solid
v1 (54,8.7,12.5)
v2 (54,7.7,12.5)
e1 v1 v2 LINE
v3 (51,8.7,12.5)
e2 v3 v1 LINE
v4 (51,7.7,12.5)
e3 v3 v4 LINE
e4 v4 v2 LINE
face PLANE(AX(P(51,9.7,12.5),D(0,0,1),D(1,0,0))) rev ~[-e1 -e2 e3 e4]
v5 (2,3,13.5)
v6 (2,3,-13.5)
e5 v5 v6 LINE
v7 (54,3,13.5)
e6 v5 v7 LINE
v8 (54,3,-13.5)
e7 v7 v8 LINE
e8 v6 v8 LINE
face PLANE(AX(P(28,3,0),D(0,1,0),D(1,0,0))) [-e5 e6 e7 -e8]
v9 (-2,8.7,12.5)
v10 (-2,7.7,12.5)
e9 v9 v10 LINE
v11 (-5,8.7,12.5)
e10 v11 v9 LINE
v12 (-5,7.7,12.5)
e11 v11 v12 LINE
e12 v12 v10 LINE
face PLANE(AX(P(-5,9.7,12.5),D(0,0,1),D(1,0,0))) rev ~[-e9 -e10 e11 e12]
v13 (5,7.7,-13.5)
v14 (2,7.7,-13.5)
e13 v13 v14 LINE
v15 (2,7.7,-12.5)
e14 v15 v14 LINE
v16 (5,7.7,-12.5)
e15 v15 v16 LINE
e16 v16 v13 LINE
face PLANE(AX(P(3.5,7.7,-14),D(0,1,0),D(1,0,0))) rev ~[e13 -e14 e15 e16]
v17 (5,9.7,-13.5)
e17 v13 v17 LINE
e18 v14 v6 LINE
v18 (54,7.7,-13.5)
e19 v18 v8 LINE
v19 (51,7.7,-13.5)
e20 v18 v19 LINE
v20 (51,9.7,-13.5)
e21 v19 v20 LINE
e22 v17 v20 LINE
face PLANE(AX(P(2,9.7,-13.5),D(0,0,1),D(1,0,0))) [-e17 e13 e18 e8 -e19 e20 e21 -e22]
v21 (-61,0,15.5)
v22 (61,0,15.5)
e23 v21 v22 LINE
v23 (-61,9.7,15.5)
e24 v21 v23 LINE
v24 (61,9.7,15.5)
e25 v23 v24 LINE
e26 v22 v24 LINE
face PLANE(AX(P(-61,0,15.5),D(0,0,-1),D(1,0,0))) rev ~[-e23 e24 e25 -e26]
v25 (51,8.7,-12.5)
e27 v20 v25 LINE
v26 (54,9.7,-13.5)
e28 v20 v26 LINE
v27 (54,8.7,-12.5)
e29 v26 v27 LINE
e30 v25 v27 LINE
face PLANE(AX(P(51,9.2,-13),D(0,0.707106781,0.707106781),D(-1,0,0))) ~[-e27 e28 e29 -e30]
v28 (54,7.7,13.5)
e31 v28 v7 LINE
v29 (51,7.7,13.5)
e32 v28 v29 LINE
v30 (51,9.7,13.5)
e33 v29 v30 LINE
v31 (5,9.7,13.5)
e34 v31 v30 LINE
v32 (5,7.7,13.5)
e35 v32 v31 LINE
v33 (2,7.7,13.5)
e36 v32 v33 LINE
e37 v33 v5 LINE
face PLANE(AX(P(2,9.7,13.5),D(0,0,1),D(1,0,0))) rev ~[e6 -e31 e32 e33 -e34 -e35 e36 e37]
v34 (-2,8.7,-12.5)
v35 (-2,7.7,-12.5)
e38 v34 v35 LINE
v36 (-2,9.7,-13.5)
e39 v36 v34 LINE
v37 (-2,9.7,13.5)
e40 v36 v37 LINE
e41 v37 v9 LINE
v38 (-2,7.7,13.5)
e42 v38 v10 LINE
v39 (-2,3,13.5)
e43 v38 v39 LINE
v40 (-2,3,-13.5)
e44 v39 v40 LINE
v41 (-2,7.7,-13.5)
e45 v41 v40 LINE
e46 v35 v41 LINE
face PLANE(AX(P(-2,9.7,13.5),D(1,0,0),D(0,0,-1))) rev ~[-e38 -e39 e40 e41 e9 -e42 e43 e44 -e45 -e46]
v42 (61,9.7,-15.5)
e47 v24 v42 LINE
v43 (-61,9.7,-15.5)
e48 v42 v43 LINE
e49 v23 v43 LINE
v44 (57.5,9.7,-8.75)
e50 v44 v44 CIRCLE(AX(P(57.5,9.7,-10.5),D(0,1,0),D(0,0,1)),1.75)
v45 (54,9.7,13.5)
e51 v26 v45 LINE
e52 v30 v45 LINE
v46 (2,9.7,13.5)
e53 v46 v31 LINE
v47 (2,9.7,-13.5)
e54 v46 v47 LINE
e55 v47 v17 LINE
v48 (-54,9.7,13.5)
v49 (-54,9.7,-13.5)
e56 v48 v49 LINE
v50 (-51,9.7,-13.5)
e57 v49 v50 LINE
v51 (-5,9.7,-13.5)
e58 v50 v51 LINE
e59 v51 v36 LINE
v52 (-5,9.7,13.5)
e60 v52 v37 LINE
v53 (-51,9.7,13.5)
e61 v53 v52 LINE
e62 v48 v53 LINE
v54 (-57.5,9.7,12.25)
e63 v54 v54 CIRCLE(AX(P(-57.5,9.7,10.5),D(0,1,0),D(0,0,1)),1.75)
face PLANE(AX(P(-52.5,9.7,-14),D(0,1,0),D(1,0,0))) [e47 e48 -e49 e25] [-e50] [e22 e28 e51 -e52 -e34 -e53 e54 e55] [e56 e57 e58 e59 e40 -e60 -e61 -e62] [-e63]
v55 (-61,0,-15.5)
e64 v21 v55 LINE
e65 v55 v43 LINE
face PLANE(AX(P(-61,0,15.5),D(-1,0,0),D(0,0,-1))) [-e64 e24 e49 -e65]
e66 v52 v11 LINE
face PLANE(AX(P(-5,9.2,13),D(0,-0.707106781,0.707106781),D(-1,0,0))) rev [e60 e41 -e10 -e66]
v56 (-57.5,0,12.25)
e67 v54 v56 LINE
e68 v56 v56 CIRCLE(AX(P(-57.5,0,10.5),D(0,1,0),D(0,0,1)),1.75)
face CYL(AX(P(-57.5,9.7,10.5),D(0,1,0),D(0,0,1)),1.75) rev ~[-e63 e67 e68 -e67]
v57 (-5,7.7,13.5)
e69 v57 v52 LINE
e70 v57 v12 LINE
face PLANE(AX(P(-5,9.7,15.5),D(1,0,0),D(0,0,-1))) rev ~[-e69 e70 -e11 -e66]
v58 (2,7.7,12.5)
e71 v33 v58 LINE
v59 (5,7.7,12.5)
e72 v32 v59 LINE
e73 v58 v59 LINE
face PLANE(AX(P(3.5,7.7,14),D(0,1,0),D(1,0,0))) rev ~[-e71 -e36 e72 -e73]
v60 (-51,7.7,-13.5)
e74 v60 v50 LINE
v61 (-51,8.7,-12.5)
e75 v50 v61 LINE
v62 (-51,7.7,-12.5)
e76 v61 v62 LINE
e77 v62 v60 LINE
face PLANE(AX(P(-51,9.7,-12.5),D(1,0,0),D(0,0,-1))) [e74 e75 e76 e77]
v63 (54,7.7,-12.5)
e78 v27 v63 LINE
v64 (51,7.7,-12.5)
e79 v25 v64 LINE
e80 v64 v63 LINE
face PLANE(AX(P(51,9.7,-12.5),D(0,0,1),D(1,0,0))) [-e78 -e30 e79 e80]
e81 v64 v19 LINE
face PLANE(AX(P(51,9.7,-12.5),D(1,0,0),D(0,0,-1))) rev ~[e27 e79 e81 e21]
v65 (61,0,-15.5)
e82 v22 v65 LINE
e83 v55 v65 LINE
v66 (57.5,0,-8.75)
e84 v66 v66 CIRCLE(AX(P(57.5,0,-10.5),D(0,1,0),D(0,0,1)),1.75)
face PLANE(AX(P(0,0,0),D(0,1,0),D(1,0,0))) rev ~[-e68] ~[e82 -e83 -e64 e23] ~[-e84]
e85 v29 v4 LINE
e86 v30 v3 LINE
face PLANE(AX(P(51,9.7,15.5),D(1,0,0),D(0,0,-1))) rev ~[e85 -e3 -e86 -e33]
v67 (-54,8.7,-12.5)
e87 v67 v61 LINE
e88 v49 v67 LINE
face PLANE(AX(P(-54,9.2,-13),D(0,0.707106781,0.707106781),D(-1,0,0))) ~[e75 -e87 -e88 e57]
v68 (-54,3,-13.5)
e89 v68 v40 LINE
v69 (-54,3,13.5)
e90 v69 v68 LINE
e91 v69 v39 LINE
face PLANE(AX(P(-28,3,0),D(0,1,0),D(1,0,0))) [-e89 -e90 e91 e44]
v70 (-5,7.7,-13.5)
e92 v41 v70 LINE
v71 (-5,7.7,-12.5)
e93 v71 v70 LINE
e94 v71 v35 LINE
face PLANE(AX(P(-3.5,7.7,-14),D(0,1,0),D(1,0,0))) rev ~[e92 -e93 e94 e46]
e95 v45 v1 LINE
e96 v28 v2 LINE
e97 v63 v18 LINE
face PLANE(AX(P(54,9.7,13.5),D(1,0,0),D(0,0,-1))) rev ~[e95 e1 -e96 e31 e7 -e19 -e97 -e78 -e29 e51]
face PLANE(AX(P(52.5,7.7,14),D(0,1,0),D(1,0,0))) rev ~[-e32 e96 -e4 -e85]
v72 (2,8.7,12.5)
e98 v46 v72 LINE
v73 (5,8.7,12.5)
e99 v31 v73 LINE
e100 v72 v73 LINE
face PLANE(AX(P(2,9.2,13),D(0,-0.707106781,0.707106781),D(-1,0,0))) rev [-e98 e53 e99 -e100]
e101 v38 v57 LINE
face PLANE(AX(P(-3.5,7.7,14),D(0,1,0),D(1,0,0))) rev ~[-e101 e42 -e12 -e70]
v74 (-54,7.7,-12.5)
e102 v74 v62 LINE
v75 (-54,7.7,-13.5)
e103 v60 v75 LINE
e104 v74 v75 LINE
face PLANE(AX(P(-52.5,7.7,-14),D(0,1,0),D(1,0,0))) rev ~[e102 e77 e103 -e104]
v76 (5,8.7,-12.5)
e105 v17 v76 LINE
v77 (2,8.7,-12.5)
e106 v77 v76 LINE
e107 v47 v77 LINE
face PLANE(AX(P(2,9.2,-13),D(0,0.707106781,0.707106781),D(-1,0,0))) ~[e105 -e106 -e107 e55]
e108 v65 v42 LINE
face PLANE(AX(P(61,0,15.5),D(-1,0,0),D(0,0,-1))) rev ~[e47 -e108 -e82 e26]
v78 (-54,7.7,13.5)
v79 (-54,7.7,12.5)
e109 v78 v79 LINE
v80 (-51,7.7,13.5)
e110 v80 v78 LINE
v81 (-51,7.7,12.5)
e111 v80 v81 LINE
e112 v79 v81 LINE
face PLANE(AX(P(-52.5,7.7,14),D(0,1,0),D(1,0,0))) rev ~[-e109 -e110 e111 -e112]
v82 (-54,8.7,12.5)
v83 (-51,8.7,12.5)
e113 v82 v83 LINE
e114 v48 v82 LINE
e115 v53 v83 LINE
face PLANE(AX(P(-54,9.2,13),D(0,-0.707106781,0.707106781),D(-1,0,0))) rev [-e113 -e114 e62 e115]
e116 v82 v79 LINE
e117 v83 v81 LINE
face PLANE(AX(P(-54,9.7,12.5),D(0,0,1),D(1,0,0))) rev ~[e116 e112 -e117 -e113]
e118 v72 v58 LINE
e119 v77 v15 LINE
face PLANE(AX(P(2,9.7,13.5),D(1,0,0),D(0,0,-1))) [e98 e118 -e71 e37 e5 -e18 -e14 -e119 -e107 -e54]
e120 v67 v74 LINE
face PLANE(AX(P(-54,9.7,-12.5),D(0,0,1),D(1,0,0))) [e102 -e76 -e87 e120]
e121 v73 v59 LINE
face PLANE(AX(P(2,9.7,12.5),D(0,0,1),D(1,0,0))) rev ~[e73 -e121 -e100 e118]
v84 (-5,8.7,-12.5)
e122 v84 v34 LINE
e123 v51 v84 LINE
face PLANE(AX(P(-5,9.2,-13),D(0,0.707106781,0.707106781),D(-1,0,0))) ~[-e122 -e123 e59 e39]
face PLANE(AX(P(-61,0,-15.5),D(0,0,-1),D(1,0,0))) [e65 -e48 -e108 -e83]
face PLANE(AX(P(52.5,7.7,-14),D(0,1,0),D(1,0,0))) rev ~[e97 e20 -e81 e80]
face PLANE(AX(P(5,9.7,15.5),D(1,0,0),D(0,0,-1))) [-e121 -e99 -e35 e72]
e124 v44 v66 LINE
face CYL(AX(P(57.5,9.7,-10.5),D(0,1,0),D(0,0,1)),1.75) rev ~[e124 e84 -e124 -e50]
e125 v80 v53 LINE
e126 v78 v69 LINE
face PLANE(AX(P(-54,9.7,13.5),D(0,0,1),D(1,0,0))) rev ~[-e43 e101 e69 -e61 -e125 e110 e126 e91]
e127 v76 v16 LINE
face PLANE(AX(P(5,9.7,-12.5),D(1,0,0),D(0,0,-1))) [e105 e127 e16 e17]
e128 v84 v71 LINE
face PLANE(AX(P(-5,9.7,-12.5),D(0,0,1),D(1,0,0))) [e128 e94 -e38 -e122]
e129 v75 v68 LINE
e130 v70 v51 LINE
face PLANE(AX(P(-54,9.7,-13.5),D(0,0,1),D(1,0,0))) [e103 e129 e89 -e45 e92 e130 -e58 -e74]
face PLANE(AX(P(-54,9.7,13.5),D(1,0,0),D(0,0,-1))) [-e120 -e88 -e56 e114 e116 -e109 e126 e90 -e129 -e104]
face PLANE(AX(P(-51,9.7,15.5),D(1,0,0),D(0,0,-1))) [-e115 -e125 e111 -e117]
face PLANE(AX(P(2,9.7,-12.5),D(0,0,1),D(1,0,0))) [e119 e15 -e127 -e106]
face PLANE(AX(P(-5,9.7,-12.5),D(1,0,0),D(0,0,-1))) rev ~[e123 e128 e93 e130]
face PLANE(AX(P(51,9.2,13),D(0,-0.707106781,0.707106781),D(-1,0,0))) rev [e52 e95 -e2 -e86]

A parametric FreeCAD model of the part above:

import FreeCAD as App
import Part
import Sketcher


def edges_at(feature, points):
    """Names of the edges that pass closest to the given points."""
    edges = feature.Shape.Edges
    near = lambda p: min(range(len(edges)), key=lambda i: edges[i].distToShape(Part.Vertex(*p))[0])
    return sorted({f"Edge{near(p) + 1}" for p in points})


def add_polygon(sketch, points):
    """Adds a closed chain of lines whose ends are joined by coincident constraints."""
    first, n = sketch.GeometryCount, len(points)
    for a, b in zip(points, points[1:] + points[:1]):
        sketch.addGeometry(Part.LineSegment(App.Vector(*a, 0), App.Vector(*b, 0)), False)
    for i in range(n):
        sketch.addConstraint(Sketcher.Constraint("Coincident", first + i, 2, first + (i + 1) % n, 1))

doc = App.newDocument("Part")
body = doc.addObject("PartDesign::Body", "Body")

# Sketch on XZ plane
sketch1 = body.newObject("Sketcher::SketchObject", "Sketch")
sketch1.AttachmentSupport = (doc.getObject("XZ_Plane"), [""])
sketch1.MapMode = "FlatFace"
add_polygon(sketch1, [(-61, -16), (-61, 16), (61, 16), (61, -16)])  # lines 0-3
sketch1.addConstraint([
    Sketcher.Constraint("Vertical", 0),
    Sketcher.Constraint("Horizontal", 1),
    Sketcher.Constraint("Vertical", 2),
    Sketcher.Constraint("Horizontal", 3),
    Sketcher.Constraint("Symmetric", 0, 2, 2, 2, -1, 1),
    Sketcher.Constraint("DistanceX", 1, 1, 1, 2, 122.0),
    Sketcher.Constraint("DistanceY", 0, 1, 0, 2, 31.0),
])
pad1 = body.newObject("PartDesign::Pad", "Pad")
pad1.Profile = sketch1
pad1.Length = 9.7
pad1.Reversed = True

# Sketch on XZ plane
sketch2 = body.newObject("Sketcher::SketchObject", "Sketch001")
sketch2.AttachmentSupport = (doc.getObject("XZ_Plane"), [""])
sketch2.MapMode = "FlatFace"
sketch2.AttachmentOffset = App.Placement(App.Vector(0, 0, -9.7), App.Rotation())
add_polygon(sketch2, [(-54, -14), (-54, 14), (-2, 14), (-2, -14)])  # lines 0-3
add_polygon(sketch2, [(2, -14), (2, 14), (54, 14), (54, -14)])  # lines 4-7
sketch2.addConstraint([
    Sketcher.Constraint("Vertical", 0),
    Sketcher.Constraint("Horizontal", 1),
    Sketcher.Constraint("Vertical", 2),
    Sketcher.Constraint("Horizontal", 3),
    Sketcher.Constraint("Vertical", 4),
    Sketcher.Constraint("Horizontal", 5),
    Sketcher.Constraint("Vertical", 6),
    Sketcher.Constraint("Horizontal", 7),
    Sketcher.Constraint("Symmetric", 2, 2, 4, 2, -1, 1),
    Sketcher.Constraint("Symmetric", 0, 2, 6, 2, -1, 1),
    Sketcher.Constraint("Horizontal", 1, 2, 4, 2),
    Sketcher.Constraint("DistanceX", 1, 1, 1, 2, 52.0),
    Sketcher.Constraint("DistanceY", 0, 1, 0, 2, 27.0),
    Sketcher.Constraint("DistanceX", 0, 2, -1, 1, 54.0),
])
pocket1 = body.newObject("PartDesign::Pocket", "Pocket")
pocket1.Profile = sketch2
pocket1.Length = 6.7
pocket1.Reversed = True

# Sketch on XZ plane
sketch3 = body.newObject("Sketcher::SketchObject", "Sketch002")
sketch3.AttachmentSupport = (doc.getObject("XZ_Plane"), [""])
sketch3.MapMode = "FlatFace"
sketch3.AttachmentOffset = App.Placement(App.Vector(0, 0, -9.7), App.Rotation())
add_polygon(sketch3, [(-54, -15.5), (-54, -12.5), (-51, -12.5), (-51, -15.5)])  # lines 0-3
add_polygon(sketch3, [(-5, -15.5), (-5, -12.5), (-2, -12.5), (-2, -15.5)])  # lines 4-7
add_polygon(sketch3, [(-5, 12.5), (-5, 15.5), (-2, 15.5), (-2, 12.5)])  # lines 8-11
add_polygon(sketch3, [(-54, 12.5), (-54, 15.5), (-51, 15.5), (-51, 12.5)])  # lines 12-15
add_polygon(sketch3, [(51, 12.5), (51, 15.5), (54, 15.5), (54, 12.5)])  # lines 16-19
add_polygon(sketch3, [(2, 12.5), (2, 15.5), (5, 15.5), (5, 12.5)])  # lines 20-23
add_polygon(sketch3, [(2, -15.5), (2, -12.5), (5, -12.5), (5, -15.5)])  # lines 24-27
add_polygon(sketch3, [(51, -15.5), (51, -12.5), (54, -12.5), (54, -15.5)])  # lines 28-31
sketch3.addConstraint([
    Sketcher.Constraint("Vertical", 0),
    Sketcher.Constraint("Horizontal", 1),
    Sketcher.Constraint("Vertical", 2),
    Sketcher.Constraint("Horizontal", 3),
    Sketcher.Constraint("Vertical", 4),
    Sketcher.Constraint("Horizontal", 5),
    Sketcher.Constraint("Vertical", 6),
    Sketcher.Constraint("Horizontal", 7),
    Sketcher.Constraint("Vertical", 8),
    Sketcher.Constraint("Horizontal", 9),
    Sketcher.Constraint("Vertical", 10),
    Sketcher.Constraint("Horizontal", 11),
    Sketcher.Constraint("Vertical", 12),
    Sketcher.Constraint("Horizontal", 13),
    Sketcher.Constraint("Vertical", 14),
    Sketcher.Constraint("Horizontal", 15),
    Sketcher.Constraint("Vertical", 16),
    Sketcher.Constraint("Horizontal", 17),
    Sketcher.Constraint("Vertical", 18),
    Sketcher.Constraint("Horizontal", 19),
    Sketcher.Constraint("Vertical", 20),
    Sketcher.Constraint("Horizontal", 21),
    Sketcher.Constraint("Vertical", 22),
    Sketcher.Constraint("Horizontal", 23),
    Sketcher.Constraint("Vertical", 24),
    Sketcher.Constraint("Horizontal", 25),
    Sketcher.Constraint("Vertical", 26),
    Sketcher.Constraint("Horizontal", 27),
    Sketcher.Constraint("Vertical", 28),
    Sketcher.Constraint("Horizontal", 29),
    Sketcher.Constraint("Vertical", 30),
    Sketcher.Constraint("Horizontal", 31),
    Sketcher.Constraint("Symmetric", 2, 2, 16, 2, -1, 1),
    Sketcher.Constraint("Symmetric", 0, 2, 18, 2, -1, 1),
    Sketcher.Constraint("Symmetric", 6, 2, 20, 2, -1, 1),
    Sketcher.Constraint("Symmetric", 4, 2, 22, 2, -1, 1),
    Sketcher.Constraint("Symmetric", 10, 2, 24, 2, -1, 1),
    Sketcher.Constraint("Symmetric", 8, 2, 26, 2, -1, 1),
    Sketcher.Constraint("Symmetric", 14, 2, 28, 2, -1, 1),
    Sketcher.Constraint("Symmetric", 12, 2, 30, 2, -1, 1),
    Sketcher.Constraint("Symmetric", 13, 2, 16, 2, -2),
    Sketcher.Constraint("Symmetric", 15, 2, 18, 2, -2),
    Sketcher.Constraint("Symmetric", 9, 2, 20, 2, -2),
    Sketcher.Constraint("Symmetric", 11, 2, 22, 2, -2),
    Sketcher.Constraint("Horizontal", 1, 2, 4, 2),
    Sketcher.Constraint("Horizontal", 3, 2, 6, 2),
    Sketcher.Constraint("Equal", 3, 5),
    Sketcher.Constraint("Equal", 31, 0),
    Sketcher.Constraint("DistanceX", 1, 1, 1, 2, 3.0),
    Sketcher.Constraint("DistanceX", 0, 2, -1, 1, 54.0),
    Sketcher.Constraint("DistanceX", 4, 2, -1, 1, 5.0),
    Sketcher.Constraint("DistanceY", 4, 2, 8, 2, 28.0),
])
pad2 = body.newObject("PartDesign::Pad", "Pad001")
pad2.Profile = sketch3
pad2.Length = 2
doc.recompute()

chamfer = body.newObject("PartDesign::Chamfer", "Chamfer")
chamfer.Base = (pad2, edges_at(pad2, [
    (-52.5, 9.7, 12.5),
    (-3.5, 9.7, 12.5),
    (52.5, 9.7, 12.5),
    (3.5, 9.7, 12.5),
    (52.5, 9.7, -12.5),
    (3.5, 9.7, -12.5),
    (-3.5, 9.7, -12.5),
    (-52.5, 9.7, -12.5),
]))
chamfer.Size = 1

# Sketch on XZ plane
sketch4 = body.newObject("Sketcher::SketchObject", "Sketch003")
sketch4.AttachmentSupport = (doc.getObject("XZ_Plane"), [""])
sketch4.MapMode = "FlatFace"
sketch4.AttachmentOffset = App.Placement(App.Vector(0, 0, -9.7), App.Rotation())
sketch4.addGeometry([
    Part.Circle(App.Vector(-57.5, 10.5, 0), App.Vector(0, 0, 1), 1.8),
    Part.Circle(App.Vector(57.5, -10.5, 0), App.Vector(0, 0, 1), 1.8),
], False)
sketch4.addConstraint([
    Sketcher.Constraint("Equal", 0, 1),
    Sketcher.Constraint("Symmetric", 0, 3, 1, 3, -1, 1),
    Sketcher.Constraint("Diameter", 0, 3.5),
    Sketcher.Constraint("DistanceX", 0, 3, 1, 3, 115.0),
    Sketcher.Constraint("DistanceY", 1, 3, 0, 3, 21.0),
])
pocket2 = body.newObject("PartDesign::Pocket", "Pocket001")
pocket2.Profile = sketch4
pocket2.Type = "ThroughAll"
pocket2.Reversed = True

doc.recompute()
